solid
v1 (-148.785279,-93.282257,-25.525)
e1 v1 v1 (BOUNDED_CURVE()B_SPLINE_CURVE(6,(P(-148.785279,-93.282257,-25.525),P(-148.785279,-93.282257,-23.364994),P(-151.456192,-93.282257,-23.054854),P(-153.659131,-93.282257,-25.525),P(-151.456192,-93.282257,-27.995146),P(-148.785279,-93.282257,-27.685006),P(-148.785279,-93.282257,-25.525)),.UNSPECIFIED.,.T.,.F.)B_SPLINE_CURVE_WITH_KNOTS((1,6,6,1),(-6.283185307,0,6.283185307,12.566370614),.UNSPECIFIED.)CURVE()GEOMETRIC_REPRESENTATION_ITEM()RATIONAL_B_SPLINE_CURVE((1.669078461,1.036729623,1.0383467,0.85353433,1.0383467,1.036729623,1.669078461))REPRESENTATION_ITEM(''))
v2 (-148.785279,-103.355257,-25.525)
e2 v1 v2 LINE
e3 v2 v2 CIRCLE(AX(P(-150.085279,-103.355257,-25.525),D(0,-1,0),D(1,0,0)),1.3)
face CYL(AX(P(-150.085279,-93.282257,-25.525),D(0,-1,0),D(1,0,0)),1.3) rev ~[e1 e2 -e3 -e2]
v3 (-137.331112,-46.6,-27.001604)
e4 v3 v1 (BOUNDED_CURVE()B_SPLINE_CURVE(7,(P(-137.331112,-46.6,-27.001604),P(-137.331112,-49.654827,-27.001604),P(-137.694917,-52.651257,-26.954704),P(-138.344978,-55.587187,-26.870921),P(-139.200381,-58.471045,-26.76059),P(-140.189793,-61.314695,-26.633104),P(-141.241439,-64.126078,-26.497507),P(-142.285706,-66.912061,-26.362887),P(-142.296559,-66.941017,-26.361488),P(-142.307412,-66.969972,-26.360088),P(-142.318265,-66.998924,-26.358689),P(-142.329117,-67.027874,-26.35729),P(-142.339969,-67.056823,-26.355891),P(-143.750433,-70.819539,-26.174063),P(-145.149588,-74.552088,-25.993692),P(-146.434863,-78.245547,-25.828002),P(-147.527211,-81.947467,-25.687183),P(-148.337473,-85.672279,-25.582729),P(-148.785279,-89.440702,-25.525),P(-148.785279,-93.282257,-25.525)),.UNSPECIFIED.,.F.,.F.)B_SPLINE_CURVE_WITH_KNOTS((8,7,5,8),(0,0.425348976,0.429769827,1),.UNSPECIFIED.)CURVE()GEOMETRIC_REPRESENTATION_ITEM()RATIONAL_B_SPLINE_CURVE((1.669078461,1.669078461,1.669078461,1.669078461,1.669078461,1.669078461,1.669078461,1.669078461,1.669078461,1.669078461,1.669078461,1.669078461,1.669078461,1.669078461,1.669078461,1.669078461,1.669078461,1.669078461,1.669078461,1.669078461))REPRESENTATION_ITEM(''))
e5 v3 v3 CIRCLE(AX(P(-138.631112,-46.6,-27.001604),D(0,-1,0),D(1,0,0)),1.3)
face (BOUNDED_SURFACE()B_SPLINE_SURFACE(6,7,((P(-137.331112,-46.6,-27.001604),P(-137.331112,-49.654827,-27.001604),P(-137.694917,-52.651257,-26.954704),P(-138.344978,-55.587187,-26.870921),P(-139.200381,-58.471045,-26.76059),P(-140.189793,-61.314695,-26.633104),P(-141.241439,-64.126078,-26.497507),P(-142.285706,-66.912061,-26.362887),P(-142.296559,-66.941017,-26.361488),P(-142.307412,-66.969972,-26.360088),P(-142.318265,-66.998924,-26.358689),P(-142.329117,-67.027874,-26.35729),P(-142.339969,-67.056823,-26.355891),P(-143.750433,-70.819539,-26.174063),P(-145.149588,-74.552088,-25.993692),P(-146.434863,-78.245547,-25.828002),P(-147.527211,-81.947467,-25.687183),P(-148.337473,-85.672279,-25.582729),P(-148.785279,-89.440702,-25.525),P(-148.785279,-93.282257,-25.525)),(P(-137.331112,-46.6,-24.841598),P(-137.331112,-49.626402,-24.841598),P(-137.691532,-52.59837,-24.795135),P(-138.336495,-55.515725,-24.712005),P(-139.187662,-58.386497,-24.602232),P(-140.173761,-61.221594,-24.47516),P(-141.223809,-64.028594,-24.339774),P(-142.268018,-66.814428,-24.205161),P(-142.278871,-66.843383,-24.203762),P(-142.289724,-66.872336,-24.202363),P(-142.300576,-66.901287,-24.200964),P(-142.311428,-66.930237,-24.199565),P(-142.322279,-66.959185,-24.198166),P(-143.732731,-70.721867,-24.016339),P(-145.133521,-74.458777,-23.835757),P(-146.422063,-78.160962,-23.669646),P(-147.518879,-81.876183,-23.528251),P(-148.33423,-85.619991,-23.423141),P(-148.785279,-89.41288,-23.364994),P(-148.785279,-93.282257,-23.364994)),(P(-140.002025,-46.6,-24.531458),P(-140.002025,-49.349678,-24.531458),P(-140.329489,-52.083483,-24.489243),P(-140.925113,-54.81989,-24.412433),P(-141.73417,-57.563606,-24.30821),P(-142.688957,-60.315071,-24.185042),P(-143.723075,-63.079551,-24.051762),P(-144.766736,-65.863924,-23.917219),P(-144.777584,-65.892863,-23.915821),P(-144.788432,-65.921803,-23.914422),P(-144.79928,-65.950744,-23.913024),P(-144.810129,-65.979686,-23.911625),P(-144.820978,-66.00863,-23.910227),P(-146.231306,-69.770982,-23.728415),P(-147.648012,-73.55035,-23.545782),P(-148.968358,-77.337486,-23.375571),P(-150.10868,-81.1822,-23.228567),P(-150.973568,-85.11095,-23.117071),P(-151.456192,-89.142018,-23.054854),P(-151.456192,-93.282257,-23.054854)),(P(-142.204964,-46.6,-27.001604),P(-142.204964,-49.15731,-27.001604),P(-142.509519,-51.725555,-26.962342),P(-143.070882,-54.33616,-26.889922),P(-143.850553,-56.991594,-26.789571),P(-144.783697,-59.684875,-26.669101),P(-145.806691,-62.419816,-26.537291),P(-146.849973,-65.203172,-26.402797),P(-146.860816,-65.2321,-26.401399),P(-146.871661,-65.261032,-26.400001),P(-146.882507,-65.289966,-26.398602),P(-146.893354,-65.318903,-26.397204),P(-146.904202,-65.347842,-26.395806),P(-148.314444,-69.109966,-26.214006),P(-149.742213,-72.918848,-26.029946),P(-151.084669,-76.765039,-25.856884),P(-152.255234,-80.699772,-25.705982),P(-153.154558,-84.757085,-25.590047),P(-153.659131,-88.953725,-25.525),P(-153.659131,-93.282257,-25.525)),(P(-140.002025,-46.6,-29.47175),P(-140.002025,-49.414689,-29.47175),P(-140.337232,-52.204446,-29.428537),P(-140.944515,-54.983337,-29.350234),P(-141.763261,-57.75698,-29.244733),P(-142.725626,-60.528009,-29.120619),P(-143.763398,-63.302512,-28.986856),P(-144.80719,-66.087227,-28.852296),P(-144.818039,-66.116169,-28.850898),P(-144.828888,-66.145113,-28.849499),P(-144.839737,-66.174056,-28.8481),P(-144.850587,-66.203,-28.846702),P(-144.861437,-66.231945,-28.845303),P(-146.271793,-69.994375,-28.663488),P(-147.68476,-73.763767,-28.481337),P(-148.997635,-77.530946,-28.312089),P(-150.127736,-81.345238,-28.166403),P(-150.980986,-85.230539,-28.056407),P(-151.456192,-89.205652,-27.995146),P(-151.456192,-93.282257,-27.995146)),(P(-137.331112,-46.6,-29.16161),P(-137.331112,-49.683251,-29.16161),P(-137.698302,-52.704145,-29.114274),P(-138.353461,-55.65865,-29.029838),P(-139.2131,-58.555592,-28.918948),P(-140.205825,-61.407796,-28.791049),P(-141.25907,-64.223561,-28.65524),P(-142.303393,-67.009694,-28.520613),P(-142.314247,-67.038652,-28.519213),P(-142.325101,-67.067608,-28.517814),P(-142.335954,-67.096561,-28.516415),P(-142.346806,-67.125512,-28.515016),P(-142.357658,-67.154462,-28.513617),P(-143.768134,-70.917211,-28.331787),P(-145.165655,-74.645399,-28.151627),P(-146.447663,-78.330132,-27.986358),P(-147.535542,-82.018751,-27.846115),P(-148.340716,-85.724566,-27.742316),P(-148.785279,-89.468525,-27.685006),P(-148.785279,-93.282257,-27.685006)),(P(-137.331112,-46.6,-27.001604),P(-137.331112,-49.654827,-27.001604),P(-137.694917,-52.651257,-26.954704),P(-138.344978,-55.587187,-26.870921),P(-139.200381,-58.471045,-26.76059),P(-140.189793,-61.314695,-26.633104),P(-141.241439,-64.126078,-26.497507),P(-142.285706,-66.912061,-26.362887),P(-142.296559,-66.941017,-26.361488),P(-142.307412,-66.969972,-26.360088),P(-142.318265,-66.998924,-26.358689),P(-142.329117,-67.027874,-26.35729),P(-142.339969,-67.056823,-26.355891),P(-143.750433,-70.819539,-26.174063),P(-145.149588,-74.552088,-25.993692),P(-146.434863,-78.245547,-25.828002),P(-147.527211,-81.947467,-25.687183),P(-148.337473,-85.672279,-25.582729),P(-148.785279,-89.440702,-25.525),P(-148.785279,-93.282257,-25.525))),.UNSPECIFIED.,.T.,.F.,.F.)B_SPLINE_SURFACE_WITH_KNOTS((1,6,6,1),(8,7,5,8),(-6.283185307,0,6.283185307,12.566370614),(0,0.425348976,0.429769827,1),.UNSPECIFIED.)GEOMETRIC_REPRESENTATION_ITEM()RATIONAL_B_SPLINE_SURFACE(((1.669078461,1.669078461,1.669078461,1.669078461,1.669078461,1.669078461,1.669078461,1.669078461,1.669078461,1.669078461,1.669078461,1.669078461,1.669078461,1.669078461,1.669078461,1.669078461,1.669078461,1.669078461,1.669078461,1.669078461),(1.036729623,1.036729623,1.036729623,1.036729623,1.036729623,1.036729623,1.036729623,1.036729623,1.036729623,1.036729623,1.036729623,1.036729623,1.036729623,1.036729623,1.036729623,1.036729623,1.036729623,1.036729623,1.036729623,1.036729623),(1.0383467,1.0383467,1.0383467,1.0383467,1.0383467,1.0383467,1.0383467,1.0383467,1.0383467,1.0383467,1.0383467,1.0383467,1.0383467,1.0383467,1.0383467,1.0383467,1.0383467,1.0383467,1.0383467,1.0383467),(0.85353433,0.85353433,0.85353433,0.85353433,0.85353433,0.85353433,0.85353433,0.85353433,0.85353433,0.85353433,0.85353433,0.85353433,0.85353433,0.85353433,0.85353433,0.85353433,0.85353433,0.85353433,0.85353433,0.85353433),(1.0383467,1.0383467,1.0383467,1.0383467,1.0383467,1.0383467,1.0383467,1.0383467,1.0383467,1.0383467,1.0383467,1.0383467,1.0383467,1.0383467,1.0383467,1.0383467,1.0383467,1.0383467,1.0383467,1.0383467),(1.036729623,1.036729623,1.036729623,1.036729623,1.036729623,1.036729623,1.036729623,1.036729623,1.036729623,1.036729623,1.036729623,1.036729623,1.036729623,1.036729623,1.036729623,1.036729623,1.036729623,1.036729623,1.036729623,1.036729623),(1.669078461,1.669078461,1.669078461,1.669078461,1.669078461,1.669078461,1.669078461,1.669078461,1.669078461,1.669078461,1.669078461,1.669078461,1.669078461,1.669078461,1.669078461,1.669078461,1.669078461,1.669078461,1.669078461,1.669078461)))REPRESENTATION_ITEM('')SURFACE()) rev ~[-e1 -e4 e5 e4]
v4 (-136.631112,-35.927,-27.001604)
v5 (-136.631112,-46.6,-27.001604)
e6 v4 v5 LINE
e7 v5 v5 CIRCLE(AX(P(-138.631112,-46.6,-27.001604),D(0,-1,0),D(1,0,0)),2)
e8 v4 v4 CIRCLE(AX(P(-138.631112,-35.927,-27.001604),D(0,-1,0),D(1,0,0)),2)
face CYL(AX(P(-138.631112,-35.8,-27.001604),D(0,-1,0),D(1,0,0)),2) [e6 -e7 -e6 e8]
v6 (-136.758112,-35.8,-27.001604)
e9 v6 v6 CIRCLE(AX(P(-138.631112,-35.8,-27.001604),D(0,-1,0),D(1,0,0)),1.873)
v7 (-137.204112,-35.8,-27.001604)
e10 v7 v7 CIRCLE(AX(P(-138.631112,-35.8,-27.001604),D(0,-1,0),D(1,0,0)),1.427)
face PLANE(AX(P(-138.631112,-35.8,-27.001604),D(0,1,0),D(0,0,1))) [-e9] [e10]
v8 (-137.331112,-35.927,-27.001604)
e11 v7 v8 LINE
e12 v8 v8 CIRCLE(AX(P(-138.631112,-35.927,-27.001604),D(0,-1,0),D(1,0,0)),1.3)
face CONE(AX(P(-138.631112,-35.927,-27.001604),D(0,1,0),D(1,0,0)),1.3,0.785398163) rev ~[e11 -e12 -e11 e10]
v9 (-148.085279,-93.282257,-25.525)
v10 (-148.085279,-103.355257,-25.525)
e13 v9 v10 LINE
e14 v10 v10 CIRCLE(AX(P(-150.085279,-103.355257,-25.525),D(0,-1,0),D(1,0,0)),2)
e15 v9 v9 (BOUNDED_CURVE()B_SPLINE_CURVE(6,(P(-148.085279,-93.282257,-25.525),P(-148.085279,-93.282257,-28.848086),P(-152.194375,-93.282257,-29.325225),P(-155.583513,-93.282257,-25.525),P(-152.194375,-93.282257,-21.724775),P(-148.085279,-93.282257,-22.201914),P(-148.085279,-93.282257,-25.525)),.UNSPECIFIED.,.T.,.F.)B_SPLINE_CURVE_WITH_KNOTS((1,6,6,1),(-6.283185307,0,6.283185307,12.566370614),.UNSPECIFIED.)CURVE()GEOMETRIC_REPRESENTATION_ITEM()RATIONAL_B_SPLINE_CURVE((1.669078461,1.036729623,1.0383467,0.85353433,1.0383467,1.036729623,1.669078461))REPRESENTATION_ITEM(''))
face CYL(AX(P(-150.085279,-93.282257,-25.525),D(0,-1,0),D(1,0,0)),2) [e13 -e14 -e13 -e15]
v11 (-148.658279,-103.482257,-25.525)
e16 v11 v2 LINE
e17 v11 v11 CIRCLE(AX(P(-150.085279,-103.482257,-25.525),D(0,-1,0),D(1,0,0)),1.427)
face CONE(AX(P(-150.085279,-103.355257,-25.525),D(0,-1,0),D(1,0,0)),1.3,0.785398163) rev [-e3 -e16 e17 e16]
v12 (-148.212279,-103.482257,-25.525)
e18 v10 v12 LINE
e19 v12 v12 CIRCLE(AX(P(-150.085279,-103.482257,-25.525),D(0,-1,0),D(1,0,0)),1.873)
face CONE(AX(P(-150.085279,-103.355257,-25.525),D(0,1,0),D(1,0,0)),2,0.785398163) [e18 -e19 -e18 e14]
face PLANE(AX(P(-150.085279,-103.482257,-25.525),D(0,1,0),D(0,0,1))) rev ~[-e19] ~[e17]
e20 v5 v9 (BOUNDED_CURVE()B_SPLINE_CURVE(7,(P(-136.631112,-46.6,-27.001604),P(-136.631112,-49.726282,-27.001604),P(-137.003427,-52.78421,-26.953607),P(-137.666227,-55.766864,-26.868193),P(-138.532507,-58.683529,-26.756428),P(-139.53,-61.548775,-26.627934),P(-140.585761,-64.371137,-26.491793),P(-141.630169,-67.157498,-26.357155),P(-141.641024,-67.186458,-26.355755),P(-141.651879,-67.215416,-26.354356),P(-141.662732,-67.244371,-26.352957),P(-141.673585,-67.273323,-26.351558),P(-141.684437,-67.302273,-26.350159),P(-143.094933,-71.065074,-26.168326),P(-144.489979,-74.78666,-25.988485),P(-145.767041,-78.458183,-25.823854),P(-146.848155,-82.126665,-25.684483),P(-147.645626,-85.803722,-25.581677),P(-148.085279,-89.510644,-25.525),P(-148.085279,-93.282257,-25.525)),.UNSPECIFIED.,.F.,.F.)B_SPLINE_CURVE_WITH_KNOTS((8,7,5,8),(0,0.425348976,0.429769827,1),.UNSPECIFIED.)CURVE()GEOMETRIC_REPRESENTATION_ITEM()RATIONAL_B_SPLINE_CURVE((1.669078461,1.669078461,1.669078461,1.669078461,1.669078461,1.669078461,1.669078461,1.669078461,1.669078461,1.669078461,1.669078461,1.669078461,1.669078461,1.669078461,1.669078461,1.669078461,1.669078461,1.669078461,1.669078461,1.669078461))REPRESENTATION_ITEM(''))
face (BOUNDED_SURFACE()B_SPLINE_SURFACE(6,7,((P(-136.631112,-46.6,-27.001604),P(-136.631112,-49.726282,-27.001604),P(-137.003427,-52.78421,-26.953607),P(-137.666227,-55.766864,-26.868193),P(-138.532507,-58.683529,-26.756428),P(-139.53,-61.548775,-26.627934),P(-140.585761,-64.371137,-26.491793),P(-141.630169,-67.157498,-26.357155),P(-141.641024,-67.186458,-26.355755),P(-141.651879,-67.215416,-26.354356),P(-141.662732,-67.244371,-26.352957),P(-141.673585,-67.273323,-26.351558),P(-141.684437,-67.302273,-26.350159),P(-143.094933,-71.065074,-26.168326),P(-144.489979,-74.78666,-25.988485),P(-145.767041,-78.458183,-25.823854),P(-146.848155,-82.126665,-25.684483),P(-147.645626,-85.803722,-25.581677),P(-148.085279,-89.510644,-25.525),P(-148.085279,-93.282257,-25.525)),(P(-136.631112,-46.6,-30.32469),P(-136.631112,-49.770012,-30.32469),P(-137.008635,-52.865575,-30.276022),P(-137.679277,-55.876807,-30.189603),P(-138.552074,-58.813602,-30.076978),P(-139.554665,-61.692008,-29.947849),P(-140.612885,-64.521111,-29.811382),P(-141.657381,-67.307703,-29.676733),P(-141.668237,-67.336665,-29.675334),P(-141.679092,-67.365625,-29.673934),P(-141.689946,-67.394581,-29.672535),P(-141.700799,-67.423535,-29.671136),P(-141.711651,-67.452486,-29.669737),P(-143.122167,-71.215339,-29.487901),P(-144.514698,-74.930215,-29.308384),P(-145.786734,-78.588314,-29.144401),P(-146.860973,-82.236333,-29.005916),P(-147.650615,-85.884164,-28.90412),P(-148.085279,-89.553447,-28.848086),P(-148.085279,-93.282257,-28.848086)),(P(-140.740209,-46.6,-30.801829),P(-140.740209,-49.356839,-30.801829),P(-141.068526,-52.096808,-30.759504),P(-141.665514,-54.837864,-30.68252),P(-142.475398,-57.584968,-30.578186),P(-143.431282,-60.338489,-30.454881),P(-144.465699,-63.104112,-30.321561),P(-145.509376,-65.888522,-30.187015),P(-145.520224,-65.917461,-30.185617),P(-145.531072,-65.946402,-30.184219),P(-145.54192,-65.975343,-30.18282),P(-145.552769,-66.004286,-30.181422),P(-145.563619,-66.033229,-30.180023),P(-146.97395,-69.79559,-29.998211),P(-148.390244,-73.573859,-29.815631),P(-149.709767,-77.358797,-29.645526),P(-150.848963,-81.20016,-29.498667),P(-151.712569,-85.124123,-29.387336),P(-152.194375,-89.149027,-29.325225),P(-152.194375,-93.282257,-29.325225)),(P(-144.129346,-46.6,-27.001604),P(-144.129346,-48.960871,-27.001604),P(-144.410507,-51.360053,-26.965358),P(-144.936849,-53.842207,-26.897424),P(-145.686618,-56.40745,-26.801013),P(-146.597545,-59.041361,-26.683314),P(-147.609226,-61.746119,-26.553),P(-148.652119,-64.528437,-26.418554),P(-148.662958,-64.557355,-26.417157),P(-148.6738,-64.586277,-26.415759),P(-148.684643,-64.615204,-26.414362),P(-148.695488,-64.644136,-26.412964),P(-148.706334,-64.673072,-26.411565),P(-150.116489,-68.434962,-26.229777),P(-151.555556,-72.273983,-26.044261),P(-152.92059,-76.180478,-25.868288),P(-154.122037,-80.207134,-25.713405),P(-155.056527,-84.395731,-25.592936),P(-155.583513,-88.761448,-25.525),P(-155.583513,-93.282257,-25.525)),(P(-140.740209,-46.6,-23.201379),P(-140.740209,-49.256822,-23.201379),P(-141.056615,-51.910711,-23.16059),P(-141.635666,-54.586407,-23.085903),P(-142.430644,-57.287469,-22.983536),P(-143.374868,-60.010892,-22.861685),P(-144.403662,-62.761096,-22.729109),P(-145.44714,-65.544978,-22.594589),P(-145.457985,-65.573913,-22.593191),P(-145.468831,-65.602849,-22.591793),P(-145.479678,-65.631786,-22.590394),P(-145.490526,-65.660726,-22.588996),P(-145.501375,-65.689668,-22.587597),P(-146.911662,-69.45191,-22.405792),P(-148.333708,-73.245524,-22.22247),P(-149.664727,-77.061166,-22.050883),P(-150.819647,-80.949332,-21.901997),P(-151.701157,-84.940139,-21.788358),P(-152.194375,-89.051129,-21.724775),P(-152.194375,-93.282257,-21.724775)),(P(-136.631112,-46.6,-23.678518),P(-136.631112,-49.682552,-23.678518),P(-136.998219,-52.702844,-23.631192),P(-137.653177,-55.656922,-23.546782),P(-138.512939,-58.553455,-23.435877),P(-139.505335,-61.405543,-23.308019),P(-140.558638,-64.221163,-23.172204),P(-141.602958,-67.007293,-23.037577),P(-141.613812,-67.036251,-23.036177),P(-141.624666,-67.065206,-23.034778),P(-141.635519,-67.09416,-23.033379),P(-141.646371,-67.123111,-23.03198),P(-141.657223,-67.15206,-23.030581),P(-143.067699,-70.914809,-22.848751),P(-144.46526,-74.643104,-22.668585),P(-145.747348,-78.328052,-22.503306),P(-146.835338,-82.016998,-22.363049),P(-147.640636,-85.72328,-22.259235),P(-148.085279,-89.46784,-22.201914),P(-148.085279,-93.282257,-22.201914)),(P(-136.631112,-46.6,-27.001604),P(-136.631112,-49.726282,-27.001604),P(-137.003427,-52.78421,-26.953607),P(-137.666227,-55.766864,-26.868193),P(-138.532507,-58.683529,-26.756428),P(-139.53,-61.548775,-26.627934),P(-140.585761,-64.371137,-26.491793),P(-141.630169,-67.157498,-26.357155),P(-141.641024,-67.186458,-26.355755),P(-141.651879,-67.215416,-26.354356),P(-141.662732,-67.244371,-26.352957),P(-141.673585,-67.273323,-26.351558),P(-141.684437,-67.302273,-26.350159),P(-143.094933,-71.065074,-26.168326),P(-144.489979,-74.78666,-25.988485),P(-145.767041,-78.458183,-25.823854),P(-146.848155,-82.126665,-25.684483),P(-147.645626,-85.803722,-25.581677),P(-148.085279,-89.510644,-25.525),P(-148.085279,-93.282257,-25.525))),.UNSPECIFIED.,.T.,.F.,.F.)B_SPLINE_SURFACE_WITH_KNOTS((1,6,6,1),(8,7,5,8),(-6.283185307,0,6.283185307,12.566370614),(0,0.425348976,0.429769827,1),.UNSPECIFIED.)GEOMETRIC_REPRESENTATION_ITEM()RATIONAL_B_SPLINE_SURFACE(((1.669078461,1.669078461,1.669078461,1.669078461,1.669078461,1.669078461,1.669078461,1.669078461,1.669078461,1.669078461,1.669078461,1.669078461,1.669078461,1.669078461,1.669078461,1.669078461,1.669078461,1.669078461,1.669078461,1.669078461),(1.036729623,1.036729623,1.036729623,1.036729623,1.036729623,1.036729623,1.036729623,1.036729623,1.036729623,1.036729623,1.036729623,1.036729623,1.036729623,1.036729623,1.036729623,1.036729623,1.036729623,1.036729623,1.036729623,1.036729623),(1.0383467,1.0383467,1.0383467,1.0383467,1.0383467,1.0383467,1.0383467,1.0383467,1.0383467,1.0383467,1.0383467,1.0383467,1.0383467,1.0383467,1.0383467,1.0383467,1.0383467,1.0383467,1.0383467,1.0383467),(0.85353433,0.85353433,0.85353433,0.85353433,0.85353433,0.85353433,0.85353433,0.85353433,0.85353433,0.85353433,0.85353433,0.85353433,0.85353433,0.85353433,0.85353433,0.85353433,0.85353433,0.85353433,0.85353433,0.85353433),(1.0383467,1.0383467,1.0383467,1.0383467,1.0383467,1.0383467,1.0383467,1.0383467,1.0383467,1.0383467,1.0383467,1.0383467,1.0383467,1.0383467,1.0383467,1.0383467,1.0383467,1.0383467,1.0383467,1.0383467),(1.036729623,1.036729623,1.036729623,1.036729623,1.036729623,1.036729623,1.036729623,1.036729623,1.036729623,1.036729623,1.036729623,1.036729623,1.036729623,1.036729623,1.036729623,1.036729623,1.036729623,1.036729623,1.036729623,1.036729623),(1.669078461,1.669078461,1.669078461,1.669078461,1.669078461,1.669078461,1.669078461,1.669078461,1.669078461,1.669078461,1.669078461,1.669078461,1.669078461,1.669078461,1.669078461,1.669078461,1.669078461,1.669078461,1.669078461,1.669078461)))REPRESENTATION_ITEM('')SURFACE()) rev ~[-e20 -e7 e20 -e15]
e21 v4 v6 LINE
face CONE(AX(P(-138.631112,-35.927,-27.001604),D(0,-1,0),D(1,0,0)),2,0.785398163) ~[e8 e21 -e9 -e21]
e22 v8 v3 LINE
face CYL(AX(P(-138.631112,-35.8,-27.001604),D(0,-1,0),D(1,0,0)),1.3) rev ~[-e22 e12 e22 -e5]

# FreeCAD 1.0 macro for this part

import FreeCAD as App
import Part
import Sketcher

V = App.Vector
Q = App.Units.Quantity


def edges_at(feature, points):
    """Names of the edges that pass closest to the given points."""
    edges = feature.Shape.Edges
    near = lambda p: min(range(len(edges)), key=lambda i: edges[i].distToShape(Part.Vertex(*p))[0])
    return sorted({f"Edge{near(p) + 1}" for p in points})

doc = App.newDocument("Part")
body = doc.addObject("PartDesign::Body", "Body")

# Sketch on XZ plane
sketch1 = body.newObject("Sketcher::SketchObject", "Sketch")
sketch1.AttachmentSupport = (doc.getObject("XZ_Plane"), [""])
sketch1.MapMode = "FlatFace"
sketch1.AttachmentOffset = App.Placement(V(0, 0, 95.382257), App.Rotation())
sketch1.addGeometry(Part.Circle(V(-150.085279, -25.525, 0), V(0, 0, 1), 2), False)
sketch1.addGeometry(Part.Circle(V(-150.085279, -25.525, 0), V(0, 0, 1), 1.3), False)
sketch1.addConstraint(Sketcher.Constraint("Coincident", 1, 3, 0, 3))
sketch1.addConstraint(Sketcher.Constraint("Diameter", 0, Q("4 mm")))
sketch1.addConstraint(Sketcher.Constraint("Diameter", 1, Q("2.6 mm")))
sketch1.addConstraint(Sketcher.Constraint("DistanceY", 0, 3, -1, 1, Q("25.525 mm")))
sketch1.addConstraint(Sketcher.Constraint("DistanceX", 0, 3, -1, 1, Q("150.085279 mm")))

# Sketch on an angled plane
sketch2 = body.newObject("Sketcher::SketchObject", "Sketch001")
sketch2.Placement = App.Placement(V(-5.690212, 0, -44.139562), App.Rotation(V(-0.991792732, 0, 0.12785608), V(0, 1, 0), V(-0.12785608, 0, -0.991792732), "ZXY"))
sketch2.addGeometry(Part.LineSegment(V(134.04101, -35.8, 0), V(134.04101, -46.6, 0)), False)
sketch2.addGeometry(Part.BSplineCurve([V(134.04101, -46.6, 0), V(134.04101, -53.41829, 0), V(139.815487, -68.791471, 0), V(145.589963, -83.943709, 0), V(145.589963, -93.282257, 0)], [4, 1, 4], [0, 0.425348976, 1], False, 3, [1, 1, 1, 1, 1], False), False)
sketch2.addGeometry(Part.LineSegment(V(145.589963, -93.282257, 0), V(145.589963, -103.482257, 0)), False)
sketch2.addConstraint(Sketcher.Constraint("Block", 1))
sketch2.addConstraint(Sketcher.Constraint("Coincident", 0, 2, 1, 1))
sketch2.addConstraint(Sketcher.Constraint("Coincident", 1, 2, 2, 1))
sketch2.addConstraint(Sketcher.Constraint("Vertical", 0))
sketch2.addConstraint(Sketcher.Constraint("Vertical", 2))
sketch2.addConstraint(Sketcher.Constraint("DistanceY", 0, 2, 0, 1, Q("10.8 mm")))
sketch2.addConstraint(Sketcher.Constraint("DistanceY", 2, 2, 2, 1, Q("10.2 mm")))
doc.recompute()

additivepipe = body.newObject("PartDesign::AdditivePipe", "AdditivePipe")
additivepipe.Profile = sketch1
additivepipe.Spine = (sketch2, ["Edge1", "Edge2", "Edge3"])
doc.recompute()

chamfer = body.newObject("PartDesign::Chamfer", "Chamfer")
chamfer.Base = (additivepipe, edges_at(additivepipe, [
    (-139.931, -35.8, -27.002),
    (-140.631, -35.8, -27.002),
    (-151.385, -103.482, -25.525),
    (-152.085, -103.482, -25.525),
]))
chamfer.Size = 0.127

doc.recompute()
